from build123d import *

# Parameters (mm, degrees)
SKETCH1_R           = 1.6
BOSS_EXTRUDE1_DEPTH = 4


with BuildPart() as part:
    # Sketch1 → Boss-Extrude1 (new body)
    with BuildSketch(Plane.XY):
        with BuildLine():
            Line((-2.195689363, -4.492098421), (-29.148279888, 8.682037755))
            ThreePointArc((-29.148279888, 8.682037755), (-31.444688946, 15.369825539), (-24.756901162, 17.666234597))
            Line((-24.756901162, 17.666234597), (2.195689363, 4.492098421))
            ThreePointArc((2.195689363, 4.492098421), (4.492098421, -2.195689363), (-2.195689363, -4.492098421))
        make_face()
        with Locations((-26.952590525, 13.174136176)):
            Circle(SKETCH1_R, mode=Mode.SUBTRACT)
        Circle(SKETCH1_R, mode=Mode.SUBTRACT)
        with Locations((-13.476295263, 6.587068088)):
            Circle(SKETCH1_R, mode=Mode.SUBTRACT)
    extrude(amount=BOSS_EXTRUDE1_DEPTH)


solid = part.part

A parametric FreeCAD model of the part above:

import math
import FreeCAD as App
import Part
import Sketcher

V = App.Vector
Q = App.Units.Quantity

doc = App.newDocument("Part")
body = doc.addObject("PartDesign::Body", "Body")

sketch1 = body.newObject("Sketcher::SketchObject", "Sketch")
sketch1.AttachmentSupport = (doc.getObject("XY_Plane"), [""])
sketch1.MapMode = "FlatFace"
sketch1.addGeometry([
    Part.LineSegment(V(-29.1, 8.7, 0), V(-2.2, -4.5, 0)),
    Part.ArcOfCircle(Part.Circle(V(0, 0, 0), V(0, 0, 1), 5), math.radians(-116), math.radians(64)),
    Part.LineSegment(V(2.2, 4.5, 0), V(-24.8, 17.7, 0)),
    Part.ArcOfCircle(Part.Circle(V(-27, 13.2, 0), V(0, 0, 1), 5), math.radians(64), math.radians(244)),
    Part.Circle(V(0, 0, 0), V(0, 0, 1), 1.6),
    Part.Circle(V(-13.5, 6.6, 0), V(0, 0, 1), 1.6),
    Part.Circle(V(-27, 13.2, 0), V(0, 0, 1), 1.6),
], False)
sketch1.addConstraint([
    Sketcher.Constraint("Tangent", 0, 2, 1, 1),
    Sketcher.Constraint("Tangent", 1, 2, 2, 1),
    Sketcher.Constraint("Tangent", 2, 2, 3, 1),
    Sketcher.Constraint("Tangent", 3, 2, 0, 1),
    Sketcher.Constraint("Coincident", 1, 3, -1, 1),
    Sketcher.Constraint("Coincident", 4, 3, -1, 1),
    Sketcher.Constraint("Coincident", 6, 3, 3, 3),
    Sketcher.Constraint("Equal", 1, 3),
    Sketcher.Constraint("Equal", 4, 5),
    Sketcher.Constraint("Equal", 5, 6),
    Sketcher.Constraint("Radius", 1, Q("5 mm")),
    Sketcher.Constraint("Diameter", 4, Q("3.2 mm")),
    Sketcher.Constraint("Distance", 0, Q("30 mm")),
    Sketcher.Constraint("DistanceY", 0, 2, -1, 1, Q("4.492098 mm")),
    Sketcher.Constraint("DistanceY", -1, 1, 5, 3, Q("6.587068 mm")),
    Sketcher.Constraint("DistanceX", 5, 3, -1, 1, Q("13.476295 mm")),
])
pad1 = body.newObject("PartDesign::Pad", "Pad")
pad1.Profile = sketch1
pad1.Length = 4

doc.recompute()
